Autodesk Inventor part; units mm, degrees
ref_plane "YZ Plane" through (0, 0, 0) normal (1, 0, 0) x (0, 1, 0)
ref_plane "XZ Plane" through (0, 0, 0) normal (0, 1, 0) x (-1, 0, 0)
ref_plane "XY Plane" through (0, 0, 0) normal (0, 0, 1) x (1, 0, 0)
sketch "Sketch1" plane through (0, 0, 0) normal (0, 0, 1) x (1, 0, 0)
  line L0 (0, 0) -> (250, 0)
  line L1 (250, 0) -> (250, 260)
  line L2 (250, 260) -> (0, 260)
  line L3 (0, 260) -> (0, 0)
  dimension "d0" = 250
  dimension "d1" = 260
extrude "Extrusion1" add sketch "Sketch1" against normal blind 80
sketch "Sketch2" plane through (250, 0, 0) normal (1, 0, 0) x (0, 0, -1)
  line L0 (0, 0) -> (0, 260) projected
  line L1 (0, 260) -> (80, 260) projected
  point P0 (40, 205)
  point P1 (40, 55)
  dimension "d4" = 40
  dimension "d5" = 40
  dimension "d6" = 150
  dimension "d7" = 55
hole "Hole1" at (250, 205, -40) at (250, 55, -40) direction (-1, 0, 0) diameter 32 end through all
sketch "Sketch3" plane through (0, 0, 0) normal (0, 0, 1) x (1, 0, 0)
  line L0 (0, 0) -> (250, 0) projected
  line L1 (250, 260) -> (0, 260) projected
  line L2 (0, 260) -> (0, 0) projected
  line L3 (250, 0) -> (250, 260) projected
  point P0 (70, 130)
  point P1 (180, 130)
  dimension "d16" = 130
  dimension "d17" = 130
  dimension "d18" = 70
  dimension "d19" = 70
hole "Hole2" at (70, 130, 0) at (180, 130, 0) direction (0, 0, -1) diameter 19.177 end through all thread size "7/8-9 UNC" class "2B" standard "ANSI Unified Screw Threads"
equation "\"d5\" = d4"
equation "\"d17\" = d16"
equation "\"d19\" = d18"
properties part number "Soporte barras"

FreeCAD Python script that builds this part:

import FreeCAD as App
import Part
import Sketcher

V = App.Vector
Q = App.Units.Quantity

doc = App.newDocument("Part")
body = doc.addObject("PartDesign::Body", "Body")

sketch1 = doc.addObject("Sketcher::SketchObject", "Sketch")
body.addObject(sketch1)
sketch1.AttachmentSupport = (doc.XY_Plane, [""])
sketch1.MapMode = "FlatFace"
sketch1.addGeometry([
    Part.LineSegment(V(0, 260, 0), V(0, 0, 0)),
    Part.LineSegment(V(0, 0, 0), V(250, 0, 0)),
    Part.LineSegment(V(250, 0, 0), V(250, 260, 0)),
    Part.LineSegment(V(250, 260, 0), V(0, 260, 0)),
], False)
sketch1.addConstraint([
    Sketcher.Constraint("Coincident", 0, 2, 1, 1),
    Sketcher.Constraint("Coincident", 1, 2, 2, 1),
    Sketcher.Constraint("Coincident", 2, 2, 3, 1),
    Sketcher.Constraint("Coincident", 3, 2, 0, 1),
    Sketcher.Constraint("Vertical", 0),
    Sketcher.Constraint("Horizontal", 1),
    Sketcher.Constraint("Vertical", 2),
    Sketcher.Constraint("Horizontal", 3),
    Sketcher.Constraint("Coincident", 0, 2, -1, 1),
    Sketcher.Constraint("DistanceX", 1, 1, 1, 2, Q("250 mm")),
    Sketcher.Constraint("DistanceY", 0, 2, 0, 1, Q("260 mm")),
])
pad1 = doc.addObject("PartDesign::Pad", "Pad")
body.addObject(pad1)
pad1.Profile = sketch1
pad1.Length = 80
pad1.Reversed = True

sketch2 = doc.addObject("Sketcher::SketchObject", "Sketch001")
body.addObject(sketch2)
sketch2.AttachmentSupport = (doc.YZ_Plane, [""])
sketch2.MapMode = "FlatFace"
sketch2.AttachmentOffset = App.Placement(V(0, 0, 250), App.Rotation())
sketch2.addGeometry([
    Part.Circle(V(205, -40, 0), V(0, 0, 1), 16),
    Part.Circle(V(55, -40, 0), V(0, 0, 1), 16),
], False)
sketch2.addConstraint([
    Sketcher.Constraint("Equal", 0, 1),
    Sketcher.Constraint("Horizontal", 0, 3, 1, 3),
    Sketcher.Constraint("Diameter", 0, Q("32 mm")),
    Sketcher.Constraint("DistanceX", -1, 1, 0, 3, Q("205 mm")),
    Sketcher.Constraint("DistanceY", 0, 3, -1, 1, Q("40 mm")),
    Sketcher.Constraint("DistanceX", -1, 1, 1, 3, Q("55 mm")),
])
doc.recompute()
hole = doc.addObject("PartDesign::Hole", "Hole")
body.addObject(hole)
hole.Profile = sketch2
hole.ThreadType = "None"
hole.Diameter = 32
hole.DepthType = "ThroughAll"

sketch3 = doc.addObject("Sketcher::SketchObject", "Sketch002")
body.addObject(sketch3)
sketch3.AttachmentSupport = (doc.XY_Plane, [""])
sketch3.MapMode = "FlatFace"
sketch3.addGeometry([
    Part.Circle(V(70, 130, 0), V(0, 0, 1), 9.5885),
    Part.Circle(V(180, 130, 0), V(0, 0, 1), 9.5885),
], False)
sketch3.addConstraint([
    Sketcher.Constraint("Equal", 0, 1),
    Sketcher.Constraint("Horizontal", 0, 3, 1, 3),
    Sketcher.Constraint("Diameter", 0, Q("19.177 mm")),
    Sketcher.Constraint("DistanceX", -1, 1, 0, 3, Q("70 mm")),
    Sketcher.Constraint("DistanceY", -1, 1, 0, 3, Q("130 mm")),
    Sketcher.Constraint("DistanceX", -1, 1, 1, 3, Q("180 mm")),
])
doc.recompute()
hole2 = doc.addObject("PartDesign::Hole", "Hole001")
body.addObject(hole2)
hole2.Profile = sketch3
hole2.ThreadType = "None"
hole2.Diameter = 19.177
hole2.DepthType = "ThroughAll"

doc.recompute()
